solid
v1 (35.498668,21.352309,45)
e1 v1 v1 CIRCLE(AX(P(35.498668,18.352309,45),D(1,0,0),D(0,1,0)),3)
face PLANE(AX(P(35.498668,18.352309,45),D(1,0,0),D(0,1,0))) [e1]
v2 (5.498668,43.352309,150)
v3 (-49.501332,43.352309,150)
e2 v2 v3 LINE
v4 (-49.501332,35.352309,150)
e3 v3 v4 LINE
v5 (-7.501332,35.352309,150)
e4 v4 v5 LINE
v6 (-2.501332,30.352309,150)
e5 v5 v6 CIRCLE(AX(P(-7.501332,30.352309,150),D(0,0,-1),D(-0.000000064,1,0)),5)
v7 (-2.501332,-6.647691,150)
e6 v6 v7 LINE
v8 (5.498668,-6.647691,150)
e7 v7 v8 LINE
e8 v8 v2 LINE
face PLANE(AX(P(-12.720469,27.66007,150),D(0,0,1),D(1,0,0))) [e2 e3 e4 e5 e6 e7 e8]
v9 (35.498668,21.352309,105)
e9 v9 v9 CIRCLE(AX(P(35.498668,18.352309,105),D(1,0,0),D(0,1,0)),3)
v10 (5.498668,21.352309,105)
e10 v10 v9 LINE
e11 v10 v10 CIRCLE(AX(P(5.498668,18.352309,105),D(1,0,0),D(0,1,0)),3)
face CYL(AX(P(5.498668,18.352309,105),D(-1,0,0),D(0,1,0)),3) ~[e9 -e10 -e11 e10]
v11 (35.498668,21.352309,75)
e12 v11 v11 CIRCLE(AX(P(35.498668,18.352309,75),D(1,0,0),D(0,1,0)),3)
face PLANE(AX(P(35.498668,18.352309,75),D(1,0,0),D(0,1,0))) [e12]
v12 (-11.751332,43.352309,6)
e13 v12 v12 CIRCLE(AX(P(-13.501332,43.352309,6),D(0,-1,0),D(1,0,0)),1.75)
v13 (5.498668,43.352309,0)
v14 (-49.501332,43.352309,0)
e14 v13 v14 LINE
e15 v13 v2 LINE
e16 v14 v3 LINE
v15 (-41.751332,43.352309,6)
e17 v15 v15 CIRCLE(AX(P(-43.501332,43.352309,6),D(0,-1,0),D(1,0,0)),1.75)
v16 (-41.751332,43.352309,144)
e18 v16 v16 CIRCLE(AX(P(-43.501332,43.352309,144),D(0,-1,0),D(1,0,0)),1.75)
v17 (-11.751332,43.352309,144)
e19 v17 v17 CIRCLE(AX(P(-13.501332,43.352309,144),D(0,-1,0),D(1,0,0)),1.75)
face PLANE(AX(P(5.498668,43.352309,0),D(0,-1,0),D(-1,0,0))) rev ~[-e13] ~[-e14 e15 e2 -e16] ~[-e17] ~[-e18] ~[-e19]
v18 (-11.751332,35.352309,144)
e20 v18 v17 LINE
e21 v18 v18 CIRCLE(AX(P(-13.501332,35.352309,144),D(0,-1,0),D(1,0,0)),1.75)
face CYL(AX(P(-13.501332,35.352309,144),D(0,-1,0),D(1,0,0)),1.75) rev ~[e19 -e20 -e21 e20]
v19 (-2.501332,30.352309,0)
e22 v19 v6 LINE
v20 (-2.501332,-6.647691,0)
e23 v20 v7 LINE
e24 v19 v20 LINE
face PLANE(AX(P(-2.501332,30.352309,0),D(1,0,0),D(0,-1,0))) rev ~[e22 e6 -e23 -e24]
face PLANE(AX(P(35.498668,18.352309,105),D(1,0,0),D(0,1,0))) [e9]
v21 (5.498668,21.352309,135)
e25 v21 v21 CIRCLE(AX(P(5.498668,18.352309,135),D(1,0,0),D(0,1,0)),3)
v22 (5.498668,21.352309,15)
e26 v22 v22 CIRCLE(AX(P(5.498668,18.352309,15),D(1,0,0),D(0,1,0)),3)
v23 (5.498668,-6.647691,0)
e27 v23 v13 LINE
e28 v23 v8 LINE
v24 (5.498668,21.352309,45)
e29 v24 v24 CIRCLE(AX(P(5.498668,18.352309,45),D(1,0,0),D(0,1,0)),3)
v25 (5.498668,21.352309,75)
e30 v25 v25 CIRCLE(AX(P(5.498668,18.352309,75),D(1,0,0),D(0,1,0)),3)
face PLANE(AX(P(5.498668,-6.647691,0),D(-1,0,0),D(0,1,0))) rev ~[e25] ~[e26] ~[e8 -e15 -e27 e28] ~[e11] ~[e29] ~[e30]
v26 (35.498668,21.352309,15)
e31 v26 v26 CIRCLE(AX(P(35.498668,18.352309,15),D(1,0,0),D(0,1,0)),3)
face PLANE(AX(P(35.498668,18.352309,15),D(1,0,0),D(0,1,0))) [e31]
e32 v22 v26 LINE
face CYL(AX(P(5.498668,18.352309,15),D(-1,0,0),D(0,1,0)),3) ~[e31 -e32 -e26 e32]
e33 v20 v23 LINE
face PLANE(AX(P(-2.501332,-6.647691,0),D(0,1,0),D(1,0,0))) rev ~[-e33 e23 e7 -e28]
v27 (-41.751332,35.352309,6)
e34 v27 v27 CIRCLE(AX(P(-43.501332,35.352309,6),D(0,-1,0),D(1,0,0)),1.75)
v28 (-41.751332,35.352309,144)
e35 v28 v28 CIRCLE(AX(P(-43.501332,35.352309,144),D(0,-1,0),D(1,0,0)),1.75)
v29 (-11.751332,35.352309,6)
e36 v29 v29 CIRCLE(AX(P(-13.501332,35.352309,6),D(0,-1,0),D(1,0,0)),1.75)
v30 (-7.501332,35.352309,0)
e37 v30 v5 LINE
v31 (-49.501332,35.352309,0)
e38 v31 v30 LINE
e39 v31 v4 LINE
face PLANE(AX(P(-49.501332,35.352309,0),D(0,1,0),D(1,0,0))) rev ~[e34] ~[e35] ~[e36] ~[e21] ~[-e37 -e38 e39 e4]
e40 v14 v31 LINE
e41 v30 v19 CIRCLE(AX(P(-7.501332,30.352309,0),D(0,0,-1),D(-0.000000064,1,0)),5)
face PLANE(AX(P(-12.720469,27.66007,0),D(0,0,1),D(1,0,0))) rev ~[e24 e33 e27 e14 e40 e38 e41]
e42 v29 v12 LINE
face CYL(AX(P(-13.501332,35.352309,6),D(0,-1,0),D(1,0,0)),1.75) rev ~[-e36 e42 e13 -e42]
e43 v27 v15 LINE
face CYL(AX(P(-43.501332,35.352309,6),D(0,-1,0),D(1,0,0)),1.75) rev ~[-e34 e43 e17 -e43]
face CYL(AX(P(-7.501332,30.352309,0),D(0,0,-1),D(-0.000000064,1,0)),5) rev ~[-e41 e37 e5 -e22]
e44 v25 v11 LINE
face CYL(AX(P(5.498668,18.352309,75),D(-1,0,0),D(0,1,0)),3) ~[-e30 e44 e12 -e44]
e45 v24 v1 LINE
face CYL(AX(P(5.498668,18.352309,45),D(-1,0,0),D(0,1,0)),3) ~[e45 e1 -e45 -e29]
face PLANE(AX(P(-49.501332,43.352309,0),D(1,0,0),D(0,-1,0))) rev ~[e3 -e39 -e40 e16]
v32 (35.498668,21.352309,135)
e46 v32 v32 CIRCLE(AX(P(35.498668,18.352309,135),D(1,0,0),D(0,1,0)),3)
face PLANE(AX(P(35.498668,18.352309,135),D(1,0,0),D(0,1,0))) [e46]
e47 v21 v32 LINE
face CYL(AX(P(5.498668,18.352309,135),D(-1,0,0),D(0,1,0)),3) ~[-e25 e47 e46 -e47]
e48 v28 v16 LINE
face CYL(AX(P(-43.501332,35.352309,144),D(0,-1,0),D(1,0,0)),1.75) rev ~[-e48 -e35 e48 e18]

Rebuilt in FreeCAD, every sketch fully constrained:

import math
import FreeCAD as App
import Part
import Sketcher

V = App.Vector

doc = App.newDocument("Part")
body = doc.addObject("PartDesign::Body", "Body")

# Sketch on XY plane
sketch1 = doc.addObject("Sketcher::SketchObject", "Sketch")
body.addObject(sketch1)
sketch1.AttachmentSupport = (doc.XY_Plane, [""])
sketch1.MapMode = "FlatFace"
sketch1.addGeometry(Part.LineSegment(V(-49.5, 43.4, 0), V(-49.5, 35.4, 0)), False)
sketch1.addGeometry(Part.LineSegment(V(-49.5, 35.4, 0), V(-7.5, 35.4, 0)), False)
sketch1.addGeometry(Part.ArcOfCircle(Part.Circle(V(-7.5, 30.4, 0), V(0, 0, 1), 5), math.radians(0), math.radians(90)), False)
sketch1.addGeometry(Part.LineSegment(V(-2.5, 30.4, 0), V(-2.5, -6.6, 0)), False)
sketch1.addGeometry(Part.LineSegment(V(-2.5, -6.6, 0), V(5.5, -6.6, 0)), False)
sketch1.addGeometry(Part.LineSegment(V(5.5, -6.6, 0), V(5.5, 43.4, 0)), False)
sketch1.addGeometry(Part.LineSegment(V(5.5, 43.4, 0), V(-49.5, 43.4, 0)), False)
sketch1.addConstraint(Sketcher.Constraint("Coincident", 0, 2, 1, 1))
sketch1.addConstraint(Sketcher.Constraint("Tangent", 1, 2, 2, 2))
sketch1.addConstraint(Sketcher.Constraint("Tangent", 2, 1, 3, 1))
sketch1.addConstraint(Sketcher.Constraint("Coincident", 3, 2, 4, 1))
sketch1.addConstraint(Sketcher.Constraint("Coincident", 4, 2, 5, 1))
sketch1.addConstraint(Sketcher.Constraint("Coincident", 5, 2, 6, 1))
sketch1.addConstraint(Sketcher.Constraint("Coincident", 6, 2, 0, 1))
sketch1.addConstraint(Sketcher.Constraint("Vertical", 0))
sketch1.addConstraint(Sketcher.Constraint("Horizontal", 1))
sketch1.addConstraint(Sketcher.Constraint("Vertical", 3))
sketch1.addConstraint(Sketcher.Constraint("Horizontal", 4))
sketch1.addConstraint(Sketcher.Constraint("Vertical", 5))
sketch1.addConstraint(Sketcher.Constraint("Horizontal", 6))
sketch1.addConstraint(Sketcher.Constraint("Equal", 4, 0))
sketch1.addConstraint(Sketcher.Constraint("Radius", 2, 5.0))
sketch1.addConstraint(Sketcher.Constraint("DistanceX", 1, 1, 1, 2, 42.0))
sketch1.addConstraint(Sketcher.Constraint("DistanceX", 4, 1, 4, 2, 8.0))
sketch1.addConstraint(Sketcher.Constraint("DistanceY", 3, 2, 3, 1, 37.0))
sketch1.addConstraint(Sketcher.Constraint("DistanceX", 2, 3, -1, 1, 7.501332))
sketch1.addConstraint(Sketcher.Constraint("DistanceY", -1, 1, 2, 3, 30.352309))
pad1 = doc.addObject("PartDesign::Pad", "Pad")
body.addObject(pad1)
pad1.Profile = sketch1
pad1.Length = 150

# Sketch on YZ plane
sketch2 = doc.addObject("Sketcher::SketchObject", "Sketch001")
body.addObject(sketch2)
sketch2.AttachmentSupport = (doc.YZ_Plane, [""])
sketch2.MapMode = "FlatFace"
sketch2.AttachmentOffset = App.Placement(V(0, 0, 5.498668), App.Rotation())
sketch2.addGeometry(Part.Circle(V(18.4, 135, 0), V(0, 0, 1), 3), False)
sketch2.addGeometry(Part.Circle(V(18.4, 105, 0), V(0, 0, 1), 3), False)
sketch2.addGeometry(Part.Circle(V(18.4, 75, 0), V(0, 0, 1), 3), False)
sketch2.addGeometry(Part.Circle(V(18.4, 45, 0), V(0, 0, 1), 3), False)
sketch2.addGeometry(Part.Circle(V(18.4, 15, 0), V(0, 0, 1), 3), False)
sketch2.addConstraint(Sketcher.Constraint("Equal", 0, 1))
sketch2.addConstraint(Sketcher.Constraint("Equal", 1, 2))
sketch2.addConstraint(Sketcher.Constraint("Equal", 2, 3))
sketch2.addConstraint(Sketcher.Constraint("Equal", 3, 4))
sketch2.addConstraint(Sketcher.Constraint("Vertical", 0, 3, 1, 3))
sketch2.addConstraint(Sketcher.Constraint("Vertical", 1, 3, 2, 3))
sketch2.addConstraint(Sketcher.Constraint("Vertical", 2, 3, 3, 3))
sketch2.addConstraint(Sketcher.Constraint("Vertical", 3, 3, 4, 3))
sketch2.addConstraint(Sketcher.Constraint("Diameter", 0, 6.0))
sketch2.addConstraint(Sketcher.Constraint("DistanceY", -1, 1, 0, 3, 135.0))
sketch2.addConstraint(Sketcher.Constraint("DistanceY", -1, 1, 1, 3, 105.0))
sketch2.addConstraint(Sketcher.Constraint("DistanceY", -1, 1, 2, 3, 75.0))
sketch2.addConstraint(Sketcher.Constraint("DistanceY", -1, 1, 3, 3, 45.0))
sketch2.addConstraint(Sketcher.Constraint("DistanceY", -1, 1, 4, 3, 15.0))
sketch2.addConstraint(Sketcher.Constraint("DistanceX", -1, 1, 0, 3, 18.352309))
pad2 = doc.addObject("PartDesign::Pad", "Pad001")
body.addObject(pad2)
pad2.Profile = sketch2
pad2.Length = 30

# Sketch on XZ plane
sketch3 = doc.addObject("Sketcher::SketchObject", "Sketch002")
body.addObject(sketch3)
sketch3.AttachmentSupport = (doc.XZ_Plane, [""])
sketch3.MapMode = "FlatFace"
sketch3.AttachmentOffset = App.Placement(V(0, 0, -35.352309), App.Rotation())
sketch3.addGeometry(Part.Circle(V(-43.5, 6, 0), V(0, 0, 1), 1.8), False)
sketch3.addGeometry(Part.Circle(V(-13.5, 6, 0), V(0, 0, 1), 1.8), False)
sketch3.addGeometry(Part.Circle(V(-43.5, 144, 0), V(0, 0, 1), 1.8), False)
sketch3.addGeometry(Part.Circle(V(-13.5, 144, 0), V(0, 0, 1), 1.8), False)
sketch3.addConstraint(Sketcher.Constraint("Equal", 0, 1))
sketch3.addConstraint(Sketcher.Constraint("Equal", 1, 2))
sketch3.addConstraint(Sketcher.Constraint("Equal", 2, 3))
sketch3.addConstraint(Sketcher.Constraint("Horizontal", 0, 3, 1, 3))
sketch3.addConstraint(Sketcher.Constraint("Horizontal", 2, 3, 3, 3))
sketch3.addConstraint(Sketcher.Constraint("Vertical", 0, 3, 2, 3))
sketch3.addConstraint(Sketcher.Constraint("Vertical", 1, 3, 3, 3))
sketch3.addConstraint(Sketcher.Constraint("Diameter", 0, 3.5))
sketch3.addConstraint(Sketcher.Constraint("DistanceY", -1, 1, 0, 3, 6.0))
sketch3.addConstraint(Sketcher.Constraint("DistanceY", -1, 1, 2, 3, 144.0))
sketch3.addConstraint(Sketcher.Constraint("DistanceX", 0, 3, 1, 3, 30.0))
sketch3.addConstraint(Sketcher.Constraint("DistanceX", 0, 3, -1, 1, 43.501332))
pocket1 = doc.addObject("PartDesign::Pocket", "Pocket")
body.addObject(pocket1)
pocket1.Profile = sketch3
pocket1.Length = 8

doc.recompute()
